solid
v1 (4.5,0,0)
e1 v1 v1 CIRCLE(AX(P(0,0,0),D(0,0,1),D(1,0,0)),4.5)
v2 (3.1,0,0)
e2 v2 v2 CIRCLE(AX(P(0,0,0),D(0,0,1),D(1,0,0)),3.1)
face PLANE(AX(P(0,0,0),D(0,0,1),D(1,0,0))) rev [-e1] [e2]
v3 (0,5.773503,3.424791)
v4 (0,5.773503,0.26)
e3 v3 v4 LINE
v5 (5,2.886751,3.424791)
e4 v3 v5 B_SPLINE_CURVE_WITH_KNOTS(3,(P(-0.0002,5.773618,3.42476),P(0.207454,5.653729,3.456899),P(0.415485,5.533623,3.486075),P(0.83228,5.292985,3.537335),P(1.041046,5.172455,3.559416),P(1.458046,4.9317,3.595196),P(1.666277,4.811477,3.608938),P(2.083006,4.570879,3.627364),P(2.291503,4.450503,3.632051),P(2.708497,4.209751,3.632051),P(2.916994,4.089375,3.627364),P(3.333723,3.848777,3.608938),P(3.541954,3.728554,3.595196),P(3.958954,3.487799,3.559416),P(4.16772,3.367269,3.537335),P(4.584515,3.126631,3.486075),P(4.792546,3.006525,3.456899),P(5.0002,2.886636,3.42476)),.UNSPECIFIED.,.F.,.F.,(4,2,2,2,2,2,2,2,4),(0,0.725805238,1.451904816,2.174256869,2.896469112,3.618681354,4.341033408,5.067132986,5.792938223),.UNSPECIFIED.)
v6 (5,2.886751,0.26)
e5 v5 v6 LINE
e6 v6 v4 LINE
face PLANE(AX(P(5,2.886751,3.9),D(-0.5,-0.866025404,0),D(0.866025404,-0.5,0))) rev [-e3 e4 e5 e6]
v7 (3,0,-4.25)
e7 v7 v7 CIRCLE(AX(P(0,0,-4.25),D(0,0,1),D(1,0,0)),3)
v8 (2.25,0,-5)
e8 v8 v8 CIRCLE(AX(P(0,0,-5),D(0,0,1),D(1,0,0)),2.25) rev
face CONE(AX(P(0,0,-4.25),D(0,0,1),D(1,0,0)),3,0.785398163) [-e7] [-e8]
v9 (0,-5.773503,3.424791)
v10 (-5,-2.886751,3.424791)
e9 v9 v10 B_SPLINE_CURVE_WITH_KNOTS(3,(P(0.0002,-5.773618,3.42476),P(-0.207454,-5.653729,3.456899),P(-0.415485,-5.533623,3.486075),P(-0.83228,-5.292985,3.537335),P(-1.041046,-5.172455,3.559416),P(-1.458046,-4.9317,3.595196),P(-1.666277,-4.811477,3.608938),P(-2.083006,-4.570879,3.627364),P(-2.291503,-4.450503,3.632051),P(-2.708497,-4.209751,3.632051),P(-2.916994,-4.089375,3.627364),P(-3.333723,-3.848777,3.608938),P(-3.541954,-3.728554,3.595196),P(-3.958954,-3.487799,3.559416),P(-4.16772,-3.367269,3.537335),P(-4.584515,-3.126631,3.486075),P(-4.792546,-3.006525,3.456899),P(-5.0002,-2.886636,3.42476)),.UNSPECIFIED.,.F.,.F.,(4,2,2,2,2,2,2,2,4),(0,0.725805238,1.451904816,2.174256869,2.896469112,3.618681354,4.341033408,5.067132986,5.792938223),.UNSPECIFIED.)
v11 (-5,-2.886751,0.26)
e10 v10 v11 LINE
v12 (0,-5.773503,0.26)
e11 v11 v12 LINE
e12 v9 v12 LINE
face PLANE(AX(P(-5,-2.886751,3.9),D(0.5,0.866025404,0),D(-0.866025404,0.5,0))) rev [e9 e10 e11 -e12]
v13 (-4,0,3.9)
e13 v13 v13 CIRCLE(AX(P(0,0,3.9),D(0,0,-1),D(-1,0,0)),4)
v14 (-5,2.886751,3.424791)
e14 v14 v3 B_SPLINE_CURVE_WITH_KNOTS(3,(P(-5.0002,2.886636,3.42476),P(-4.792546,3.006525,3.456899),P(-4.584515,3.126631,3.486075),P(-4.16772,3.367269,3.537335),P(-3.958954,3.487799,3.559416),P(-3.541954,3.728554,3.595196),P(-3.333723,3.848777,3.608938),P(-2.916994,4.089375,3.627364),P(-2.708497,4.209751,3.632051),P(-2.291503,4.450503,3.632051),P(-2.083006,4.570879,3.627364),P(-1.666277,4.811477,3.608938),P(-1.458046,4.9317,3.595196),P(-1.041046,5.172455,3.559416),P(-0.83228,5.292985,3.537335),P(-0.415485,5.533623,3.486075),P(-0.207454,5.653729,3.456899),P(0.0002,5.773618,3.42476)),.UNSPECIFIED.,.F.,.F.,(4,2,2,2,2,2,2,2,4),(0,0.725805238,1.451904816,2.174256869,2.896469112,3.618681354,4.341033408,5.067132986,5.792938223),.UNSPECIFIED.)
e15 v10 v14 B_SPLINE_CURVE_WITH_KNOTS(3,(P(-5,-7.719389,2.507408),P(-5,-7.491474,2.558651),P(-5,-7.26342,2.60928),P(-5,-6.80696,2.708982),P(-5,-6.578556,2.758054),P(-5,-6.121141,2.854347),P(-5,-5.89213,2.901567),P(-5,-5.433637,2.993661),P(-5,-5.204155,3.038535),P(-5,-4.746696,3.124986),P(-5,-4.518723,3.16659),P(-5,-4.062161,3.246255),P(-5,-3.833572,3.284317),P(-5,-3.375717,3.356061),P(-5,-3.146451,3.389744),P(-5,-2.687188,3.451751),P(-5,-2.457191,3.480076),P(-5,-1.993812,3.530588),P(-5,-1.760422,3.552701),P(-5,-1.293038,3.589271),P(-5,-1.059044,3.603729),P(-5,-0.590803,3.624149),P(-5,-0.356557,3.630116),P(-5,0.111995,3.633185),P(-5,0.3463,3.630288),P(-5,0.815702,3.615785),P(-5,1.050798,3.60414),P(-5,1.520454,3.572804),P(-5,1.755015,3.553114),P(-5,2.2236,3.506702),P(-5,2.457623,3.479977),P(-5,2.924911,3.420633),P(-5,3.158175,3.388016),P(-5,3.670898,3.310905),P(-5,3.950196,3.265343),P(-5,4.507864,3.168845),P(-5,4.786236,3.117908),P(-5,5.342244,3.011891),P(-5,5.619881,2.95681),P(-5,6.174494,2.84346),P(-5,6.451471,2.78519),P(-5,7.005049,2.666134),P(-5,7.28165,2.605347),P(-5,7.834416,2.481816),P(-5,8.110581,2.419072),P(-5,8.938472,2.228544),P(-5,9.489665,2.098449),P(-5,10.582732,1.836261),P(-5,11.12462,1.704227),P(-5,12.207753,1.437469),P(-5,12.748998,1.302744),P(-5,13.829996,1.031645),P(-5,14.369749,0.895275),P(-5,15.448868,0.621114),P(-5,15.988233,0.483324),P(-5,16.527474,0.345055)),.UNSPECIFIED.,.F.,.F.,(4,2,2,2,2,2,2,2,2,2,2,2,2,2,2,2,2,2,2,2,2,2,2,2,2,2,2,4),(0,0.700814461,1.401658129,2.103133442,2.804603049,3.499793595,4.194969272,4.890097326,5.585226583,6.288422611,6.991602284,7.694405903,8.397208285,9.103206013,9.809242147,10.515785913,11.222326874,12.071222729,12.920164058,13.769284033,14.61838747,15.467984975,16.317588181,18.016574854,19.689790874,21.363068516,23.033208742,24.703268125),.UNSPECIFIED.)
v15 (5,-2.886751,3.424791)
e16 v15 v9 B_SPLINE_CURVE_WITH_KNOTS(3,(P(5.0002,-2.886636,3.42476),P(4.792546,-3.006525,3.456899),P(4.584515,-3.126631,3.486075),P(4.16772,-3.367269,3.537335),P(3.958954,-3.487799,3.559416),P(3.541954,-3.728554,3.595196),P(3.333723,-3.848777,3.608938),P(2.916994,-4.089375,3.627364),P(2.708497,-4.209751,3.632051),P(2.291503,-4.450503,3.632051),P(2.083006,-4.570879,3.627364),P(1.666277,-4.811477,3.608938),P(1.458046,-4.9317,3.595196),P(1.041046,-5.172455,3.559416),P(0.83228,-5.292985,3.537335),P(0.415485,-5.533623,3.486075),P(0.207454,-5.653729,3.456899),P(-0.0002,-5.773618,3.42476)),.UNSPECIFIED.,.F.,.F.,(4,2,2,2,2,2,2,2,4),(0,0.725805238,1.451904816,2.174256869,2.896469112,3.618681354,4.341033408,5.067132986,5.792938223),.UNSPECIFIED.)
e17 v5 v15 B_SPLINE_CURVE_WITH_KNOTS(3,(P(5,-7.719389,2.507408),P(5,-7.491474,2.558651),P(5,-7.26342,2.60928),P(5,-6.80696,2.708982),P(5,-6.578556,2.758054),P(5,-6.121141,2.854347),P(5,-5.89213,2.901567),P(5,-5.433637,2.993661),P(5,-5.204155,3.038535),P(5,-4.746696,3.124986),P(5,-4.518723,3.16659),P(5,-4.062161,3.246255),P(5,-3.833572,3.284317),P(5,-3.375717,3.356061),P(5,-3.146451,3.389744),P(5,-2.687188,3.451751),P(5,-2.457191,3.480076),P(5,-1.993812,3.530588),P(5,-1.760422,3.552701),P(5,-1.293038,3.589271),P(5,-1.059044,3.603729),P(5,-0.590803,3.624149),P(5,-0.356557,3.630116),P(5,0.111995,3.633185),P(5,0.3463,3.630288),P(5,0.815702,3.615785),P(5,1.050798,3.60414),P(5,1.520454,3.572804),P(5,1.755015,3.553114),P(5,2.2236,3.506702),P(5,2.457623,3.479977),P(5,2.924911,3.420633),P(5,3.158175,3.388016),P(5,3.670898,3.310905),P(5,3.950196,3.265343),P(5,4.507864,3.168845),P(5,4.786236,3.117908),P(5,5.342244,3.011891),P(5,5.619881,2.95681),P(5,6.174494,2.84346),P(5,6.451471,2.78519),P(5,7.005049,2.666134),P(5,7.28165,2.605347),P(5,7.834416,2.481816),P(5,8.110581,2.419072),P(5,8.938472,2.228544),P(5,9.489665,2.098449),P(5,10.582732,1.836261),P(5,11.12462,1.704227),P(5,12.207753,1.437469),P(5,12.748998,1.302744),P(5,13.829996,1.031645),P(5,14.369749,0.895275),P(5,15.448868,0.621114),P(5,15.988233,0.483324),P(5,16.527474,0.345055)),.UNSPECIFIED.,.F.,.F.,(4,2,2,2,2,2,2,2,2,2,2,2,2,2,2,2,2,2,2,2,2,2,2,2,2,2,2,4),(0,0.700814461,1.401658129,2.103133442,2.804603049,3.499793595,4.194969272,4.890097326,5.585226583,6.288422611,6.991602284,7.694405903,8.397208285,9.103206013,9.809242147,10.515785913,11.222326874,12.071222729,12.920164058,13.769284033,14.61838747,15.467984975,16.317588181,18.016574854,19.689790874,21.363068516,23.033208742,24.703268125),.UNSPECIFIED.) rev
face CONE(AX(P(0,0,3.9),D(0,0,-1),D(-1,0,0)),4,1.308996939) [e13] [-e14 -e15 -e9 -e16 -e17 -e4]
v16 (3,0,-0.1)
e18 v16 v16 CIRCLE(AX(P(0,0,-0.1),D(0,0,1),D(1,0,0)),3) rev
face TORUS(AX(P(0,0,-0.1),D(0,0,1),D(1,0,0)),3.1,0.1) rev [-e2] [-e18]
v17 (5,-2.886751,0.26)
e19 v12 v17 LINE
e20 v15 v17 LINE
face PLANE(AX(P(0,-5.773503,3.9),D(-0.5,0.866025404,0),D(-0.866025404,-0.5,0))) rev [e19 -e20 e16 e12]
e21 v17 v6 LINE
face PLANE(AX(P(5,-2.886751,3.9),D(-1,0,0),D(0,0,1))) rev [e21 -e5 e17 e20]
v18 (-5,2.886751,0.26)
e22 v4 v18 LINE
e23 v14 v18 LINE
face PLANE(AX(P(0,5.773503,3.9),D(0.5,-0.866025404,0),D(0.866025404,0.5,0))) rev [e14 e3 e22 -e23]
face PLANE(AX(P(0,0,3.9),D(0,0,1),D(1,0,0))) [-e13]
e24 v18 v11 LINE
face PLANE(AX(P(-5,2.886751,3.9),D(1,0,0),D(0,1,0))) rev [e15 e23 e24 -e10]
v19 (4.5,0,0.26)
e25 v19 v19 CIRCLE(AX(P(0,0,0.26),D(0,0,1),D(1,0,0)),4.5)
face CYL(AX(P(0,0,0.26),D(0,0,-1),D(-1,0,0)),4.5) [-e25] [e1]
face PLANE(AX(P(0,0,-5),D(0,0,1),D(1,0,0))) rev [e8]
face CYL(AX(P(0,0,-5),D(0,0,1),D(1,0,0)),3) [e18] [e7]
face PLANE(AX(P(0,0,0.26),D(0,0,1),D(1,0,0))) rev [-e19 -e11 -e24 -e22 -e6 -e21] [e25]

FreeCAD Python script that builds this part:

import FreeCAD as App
import Part
import Sketcher
from FreeCAD import Vector
Q = App.Units.Quantity


def edges_at(feature, points):
    """Names of the edges that pass closest to the given points."""
    edges = feature.Shape.Edges
    near = lambda p: min(range(len(edges)), key=lambda i: edges[i].distToShape(Part.Vertex(*p))[0])
    return sorted({f"Edge{near(p) + 1}" for p in points})

doc = App.newDocument("Part")
params = doc.addObject("Spreadsheet::Sheet", "Params")
for row, (alias, value) in enumerate([
    ("pad1_length", "3.9 mm"),
    ("sketch2_diameter", "6 mm"),
    ("pad2_length", "5 mm"),
    ("sketch3_width", "16 mm"),
    ("groove_angle", "360 deg"),
    ("chamfer_size", "0.75 mm"),
    ("sketch4_diameter", "9 mm"),
    ("pocket1_length", "0.26 mm"),
    ("fillet_radius", "0.1 mm"),
], start=1):
    params.set(f"A{row}", alias)
    params.set(f"B{row}", "=" + value)
    params.setAlias(f"B{row}", alias)

body = doc.addObject("PartDesign::Body", "Body")

# Sketch on XY plane
sketch1 = body.newObject("Sketcher::SketchObject", "Sketch")
sketch1.AttachmentSupport = (doc.getObject("XY_Plane"), [""])
sketch1.MapMode = "FlatFace"
sketch1.addGeometry(Part.LineSegment(Vector(0, 5.773503, 0), Vector(-5, 2.886751, 0)), False)
sketch1.addGeometry(Part.LineSegment(Vector(-5, 2.886751, 0), Vector(-5, -2.886751, 0)), False)
sketch1.addGeometry(Part.LineSegment(Vector(-5, -2.886751, 0), Vector(0, -5.773503, 0)), False)
sketch1.addGeometry(Part.LineSegment(Vector(0, -5.773503, 0), Vector(5, -2.886751, 0)), False)
sketch1.addGeometry(Part.LineSegment(Vector(5, -2.886751, 0), Vector(5, 2.886751, 0)), False)
sketch1.addGeometry(Part.LineSegment(Vector(5, 2.886751, 0), Vector(0, 5.773503, 0)), False)
sketch1.addConstraint(Sketcher.Constraint("Coincident", 0, 2, 1, 1))
sketch1.addConstraint(Sketcher.Constraint("Coincident", 1, 2, 2, 1))
sketch1.addConstraint(Sketcher.Constraint("Coincident", 2, 2, 3, 1))
sketch1.addConstraint(Sketcher.Constraint("Coincident", 3, 2, 4, 1))
sketch1.addConstraint(Sketcher.Constraint("Coincident", 4, 2, 5, 1))
sketch1.addConstraint(Sketcher.Constraint("Coincident", 5, 2, 0, 1))
sketch1.addConstraint(Sketcher.Constraint("Vertical", 1))
sketch1.addConstraint(Sketcher.Constraint("Vertical", 4))
sketch1.addConstraint(Sketcher.Constraint("Symmetric", 0, 2, 3, 2, -1, 1))
sketch1.addConstraint(Sketcher.Constraint("Symmetric", 2, 2, 5, 2, -1, 1))
sketch1.addConstraint(Sketcher.Constraint("PointOnObject", 2, 2, -2))
sketch1.addConstraint(Sketcher.Constraint("Parallel", 2, 5))
sketch1.addConstraint(Sketcher.Constraint("Horizontal", 1, 2, 3, 2))
sketch1.addConstraint(Sketcher.Constraint("Angle", 0, Q("-150 deg")))
sketch1.addConstraint(Sketcher.Constraint("DistanceX", 0, 2, -1, 1, Q("5 mm")))
sketch1.addConstraint(Sketcher.Constraint("DistanceY", 1, 2, 1, 1, Q("5.773503 mm")))
pad1 = body.newObject("PartDesign::Pad", "Pad")
pad1.Profile = sketch1
pad1.setExpression("Length", "Params.pad1_length")

# Sketch on XY plane
sketch2 = body.newObject("Sketcher::SketchObject", "Sketch001")
sketch2.AttachmentSupport = (doc.getObject("XY_Plane"), [""])
sketch2.MapMode = "FlatFace"
sketch2.addGeometry(Part.Circle(Vector(0, 0, 0), Vector(0, 0, 1), 3), False)
sketch2.addConstraint(Sketcher.Constraint("Coincident", 0, 3, -1, 1))
sketch2.addConstraint(Sketcher.Constraint("Diameter", 0, Q("6 mm")))
sketch2.setExpression("Constraints[1]", "Params.sketch2_diameter")
pad2 = body.newObject("PartDesign::Pad", "Pad001")
pad2.Profile = sketch2
pad2.setExpression("Length", "Params.pad2_length")
pad2.Reversed = True

# Sketch on YZ plane
sketch3 = body.newObject("Sketcher::SketchObject", "Sketch002")
sketch3.AttachmentSupport = (doc.getObject("YZ_Plane"), [""])
sketch3.MapMode = "FlatFace"
sketch3.addGeometry(Part.LineSegment(Vector(20, 3.9, 0), Vector(4, 3.9, 0)), False)
sketch3.addGeometry(Part.LineSegment(Vector(4, 3.9, 0), Vector(20, -0.387187, 0)), False)
sketch3.addGeometry(Part.LineSegment(Vector(20, -0.387187, 0), Vector(20, 3.9, 0)), False)
sketch3.addConstraint(Sketcher.Constraint("Coincident", 0, 2, 1, 1))
sketch3.addConstraint(Sketcher.Constraint("Coincident", 1, 2, 2, 1))
sketch3.addConstraint(Sketcher.Constraint("Coincident", 2, 2, 0, 1))
sketch3.addConstraint(Sketcher.Constraint("Horizontal", 0))
sketch3.addConstraint(Sketcher.Constraint("Vertical", 2))
sketch3.addConstraint(Sketcher.Constraint("DistanceX", 0, 2, 0, 1, Q("16 mm")))
sketch3.addConstraint(Sketcher.Constraint("Angle", 1, Q("-15 deg")))
sketch3.addConstraint(Sketcher.Constraint("DistanceX", -1, 1, 0, 2, Q("4 mm")))
sketch3.addConstraint(Sketcher.Constraint("DistanceY", -1, 1, 0, 2, Q("3.9 mm")))
sketch3.setExpression("Constraints[5]", "Params.sketch3_width")
groove = body.newObject("PartDesign::Groove", "Groove")
groove.Profile = sketch3
groove.ReferenceAxis = (sketch3, ["V_Axis"])
groove.setExpression("Angle", "Params.groove_angle")
doc.recompute()

chamfer = body.newObject("PartDesign::Chamfer", "Chamfer")
chamfer.Base = (groove, edges_at(groove, [(-3, 0, -5)]))
chamfer.setExpression("Size", "Params.chamfer_size")

# Sketch on XY plane
sketch4 = body.newObject("Sketcher::SketchObject", "Sketch003")
sketch4.AttachmentSupport = (doc.getObject("XY_Plane"), [""])
sketch4.MapMode = "FlatFace"
sketch4.addGeometry(Part.LineSegment(Vector(-7.768, 8.542, 0), Vector(-7.768, -8.542, 0)), False)
sketch4.addGeometry(Part.LineSegment(Vector(-7.768, -8.542, 0), Vector(7.768, -8.542, 0)), False)
sketch4.addGeometry(Part.LineSegment(Vector(7.768, -8.542, 0), Vector(7.768, 8.542, 0)), False)
sketch4.addGeometry(Part.LineSegment(Vector(7.768, 8.542, 0), Vector(-7.768, 8.542, 0)), False)
sketch4.addGeometry(Part.Circle(Vector(0, 0, 0), Vector(0, 0, 1), 4.5), False)
sketch4.addConstraint(Sketcher.Constraint("Coincident", 0, 2, 1, 1))
sketch4.addConstraint(Sketcher.Constraint("Coincident", 1, 2, 2, 1))
sketch4.addConstraint(Sketcher.Constraint("Coincident", 2, 2, 3, 1))
sketch4.addConstraint(Sketcher.Constraint("Coincident", 3, 2, 0, 1))
sketch4.addConstraint(Sketcher.Constraint("Vertical", 0))
sketch4.addConstraint(Sketcher.Constraint("Horizontal", 1))
sketch4.addConstraint(Sketcher.Constraint("Vertical", 2))
sketch4.addConstraint(Sketcher.Constraint("Horizontal", 3))
sketch4.addConstraint(Sketcher.Constraint("Coincident", 4, 3, -1, 1))
sketch4.addConstraint(Sketcher.Constraint("Symmetric", 0, 2, 2, 2, -1, 1))
sketch4.addConstraint(Sketcher.Constraint("Diameter", 4, Q("9 mm")))
sketch4.addConstraint(Sketcher.Constraint("DistanceX", 1, 1, 1, 2, Q("15.536 mm")))
sketch4.addConstraint(Sketcher.Constraint("DistanceY", 0, 2, 0, 1, Q("17.084 mm")))
sketch4.setExpression("Constraints[10]", "Params.sketch4_diameter")
pocket1 = body.newObject("PartDesign::Pocket", "Pocket")
pocket1.Profile = sketch4
pocket1.setExpression("Length", "Params.pocket1_length")
pocket1.Reversed = True
doc.recompute()

fillet = body.newObject("PartDesign::Fillet", "Fillet")
fillet.Base = (pocket1, edges_at(pocket1, [(-3, 0, 0)]))
fillet.setExpression("Radius", "Params.fillet_radius")

doc.recompute()
